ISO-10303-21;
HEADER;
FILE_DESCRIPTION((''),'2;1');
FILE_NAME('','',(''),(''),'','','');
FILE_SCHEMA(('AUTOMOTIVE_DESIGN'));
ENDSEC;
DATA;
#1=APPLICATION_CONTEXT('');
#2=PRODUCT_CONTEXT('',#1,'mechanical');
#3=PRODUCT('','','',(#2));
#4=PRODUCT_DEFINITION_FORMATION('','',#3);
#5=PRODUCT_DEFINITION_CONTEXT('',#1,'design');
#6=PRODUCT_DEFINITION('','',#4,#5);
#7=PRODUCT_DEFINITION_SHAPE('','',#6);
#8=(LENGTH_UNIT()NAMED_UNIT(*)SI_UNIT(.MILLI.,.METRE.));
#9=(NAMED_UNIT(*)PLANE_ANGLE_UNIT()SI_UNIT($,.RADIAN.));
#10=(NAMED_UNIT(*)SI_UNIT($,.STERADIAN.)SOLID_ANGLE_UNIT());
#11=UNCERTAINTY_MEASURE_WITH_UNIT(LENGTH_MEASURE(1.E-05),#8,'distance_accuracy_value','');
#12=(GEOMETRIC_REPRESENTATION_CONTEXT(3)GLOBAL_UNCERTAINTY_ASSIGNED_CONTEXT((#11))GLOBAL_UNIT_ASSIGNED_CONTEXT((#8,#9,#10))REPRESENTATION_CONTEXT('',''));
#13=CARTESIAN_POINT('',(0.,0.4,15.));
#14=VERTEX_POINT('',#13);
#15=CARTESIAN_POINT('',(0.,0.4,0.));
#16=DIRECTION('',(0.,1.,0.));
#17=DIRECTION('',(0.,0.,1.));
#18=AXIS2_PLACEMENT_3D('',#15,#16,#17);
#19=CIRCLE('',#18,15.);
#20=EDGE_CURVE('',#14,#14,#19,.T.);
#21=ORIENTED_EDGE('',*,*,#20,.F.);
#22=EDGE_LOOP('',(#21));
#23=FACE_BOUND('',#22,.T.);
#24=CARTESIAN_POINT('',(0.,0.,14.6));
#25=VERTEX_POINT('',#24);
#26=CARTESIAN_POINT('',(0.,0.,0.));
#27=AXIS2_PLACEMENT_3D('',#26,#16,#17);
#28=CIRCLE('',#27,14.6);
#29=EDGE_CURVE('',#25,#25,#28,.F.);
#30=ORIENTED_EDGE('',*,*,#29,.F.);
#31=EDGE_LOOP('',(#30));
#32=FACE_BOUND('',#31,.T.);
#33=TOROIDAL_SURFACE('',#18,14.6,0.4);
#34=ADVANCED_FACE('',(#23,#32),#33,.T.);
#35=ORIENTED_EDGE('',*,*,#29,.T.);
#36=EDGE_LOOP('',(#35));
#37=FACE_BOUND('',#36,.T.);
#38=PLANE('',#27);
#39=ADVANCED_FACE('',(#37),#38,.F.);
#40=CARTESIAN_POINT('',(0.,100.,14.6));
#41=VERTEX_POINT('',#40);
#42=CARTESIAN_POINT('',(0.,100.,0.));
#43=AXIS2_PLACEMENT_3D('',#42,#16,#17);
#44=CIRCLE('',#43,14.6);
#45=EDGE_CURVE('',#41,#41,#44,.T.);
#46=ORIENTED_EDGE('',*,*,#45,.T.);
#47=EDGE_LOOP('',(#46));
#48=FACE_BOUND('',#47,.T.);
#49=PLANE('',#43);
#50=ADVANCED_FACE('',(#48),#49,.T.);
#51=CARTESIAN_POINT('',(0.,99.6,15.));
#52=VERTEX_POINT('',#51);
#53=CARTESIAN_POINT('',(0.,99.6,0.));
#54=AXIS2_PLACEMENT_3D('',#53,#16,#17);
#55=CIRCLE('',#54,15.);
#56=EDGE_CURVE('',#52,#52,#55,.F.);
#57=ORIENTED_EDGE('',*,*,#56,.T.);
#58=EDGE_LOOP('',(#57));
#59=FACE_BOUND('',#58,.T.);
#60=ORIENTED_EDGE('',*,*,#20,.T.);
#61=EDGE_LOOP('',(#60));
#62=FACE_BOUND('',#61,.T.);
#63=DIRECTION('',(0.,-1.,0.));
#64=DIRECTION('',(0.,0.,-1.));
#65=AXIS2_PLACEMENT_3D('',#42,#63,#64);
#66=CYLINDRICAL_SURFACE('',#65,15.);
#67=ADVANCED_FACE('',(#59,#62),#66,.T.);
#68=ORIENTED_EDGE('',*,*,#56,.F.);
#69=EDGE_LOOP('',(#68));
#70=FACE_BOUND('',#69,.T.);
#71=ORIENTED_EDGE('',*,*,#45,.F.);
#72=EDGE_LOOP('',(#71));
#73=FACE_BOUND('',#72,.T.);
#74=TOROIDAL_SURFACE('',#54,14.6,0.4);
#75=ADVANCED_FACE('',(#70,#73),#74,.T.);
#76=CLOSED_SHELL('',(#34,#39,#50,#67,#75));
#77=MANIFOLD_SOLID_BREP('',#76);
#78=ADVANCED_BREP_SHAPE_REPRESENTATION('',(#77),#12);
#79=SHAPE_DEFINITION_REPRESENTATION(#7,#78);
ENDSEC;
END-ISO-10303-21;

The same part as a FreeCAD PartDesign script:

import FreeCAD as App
import Part
import Sketcher


def edges_at(feature, points):
    """Names of the edges that pass closest to the given points."""
    edges = feature.Shape.Edges
    near = lambda p: min(range(len(edges)), key=lambda i: edges[i].distToShape(Part.Vertex(*p))[0])
    return sorted({f"Edge{near(p) + 1}" for p in points})

doc = App.newDocument("Part")
body = doc.addObject("PartDesign::Body", "Body")

# Sketch on XZ plane
sketch1 = doc.addObject("Sketcher::SketchObject", "Sketch")
body.addObject(sketch1)
sketch1.AttachmentSupport = (doc.XZ_Plane, [""])
sketch1.MapMode = "FlatFace"
sketch1.addGeometry(Part.Circle(App.Vector(0, 0, 0), App.Vector(0, 0, 1), 15), False)
sketch1.addConstraint(Sketcher.Constraint("Coincident", 0, 3, -1, 1))
sketch1.addConstraint(Sketcher.Constraint("Diameter", 0, 30.0))
pad1 = doc.addObject("PartDesign::Pad", "Pad")
body.addObject(pad1)
pad1.Profile = sketch1
pad1.Length = 100
pad1.Reversed = True
doc.recompute()

fillet = doc.addObject("PartDesign::Fillet", "Fillet")
body.addObject(fillet)
fillet.Base = (pad1, edges_at(pad1, [(-15, 0, 0), (-15, 100, 0)]))
fillet.Radius = 0.4

doc.recompute()
